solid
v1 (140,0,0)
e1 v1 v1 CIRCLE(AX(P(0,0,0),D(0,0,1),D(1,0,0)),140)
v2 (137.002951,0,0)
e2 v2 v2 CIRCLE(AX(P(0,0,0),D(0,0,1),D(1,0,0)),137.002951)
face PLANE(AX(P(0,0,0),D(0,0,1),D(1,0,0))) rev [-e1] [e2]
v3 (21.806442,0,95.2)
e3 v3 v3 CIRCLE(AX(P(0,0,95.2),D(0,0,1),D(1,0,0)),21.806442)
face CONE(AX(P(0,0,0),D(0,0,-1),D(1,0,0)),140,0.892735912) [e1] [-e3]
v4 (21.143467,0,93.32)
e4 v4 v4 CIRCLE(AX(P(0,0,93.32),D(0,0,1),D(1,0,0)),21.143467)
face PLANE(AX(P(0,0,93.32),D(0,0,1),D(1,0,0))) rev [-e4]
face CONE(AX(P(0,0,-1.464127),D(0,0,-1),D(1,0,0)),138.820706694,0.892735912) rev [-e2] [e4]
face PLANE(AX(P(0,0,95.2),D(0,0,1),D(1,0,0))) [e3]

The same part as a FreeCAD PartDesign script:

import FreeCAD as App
import Part
import Sketcher

V = App.Vector
Q = App.Units.Quantity


def faces_at(feature, points):
    """Names of the faces that lie closest to the given points."""
    faces = feature.Shape.Faces
    near = lambda p: min(range(len(faces)), key=lambda i: faces[i].distToShape(Part.Vertex(*p))[0])
    return sorted({f"Face{near(p) + 1}" for p in points})

doc = App.newDocument("Part")
body = doc.addObject("PartDesign::Body", "Body")

# Sketch on XY plane
sketch1 = body.newObject("Sketcher::SketchObject", "Sketch")
sketch1.AttachmentSupport = (doc.getObject("XY_Plane"), [""])
sketch1.MapMode = "FlatFace"
sketch1.addGeometry(Part.Circle(V(0, 0, 0), V(0, 0, 1), 140), False)
sketch1.addConstraint(Sketcher.Constraint("Coincident", 0, 3, -1, 1))
sketch1.addConstraint(Sketcher.Constraint("Diameter", 0, Q("280 mm")))
pad1 = body.newObject("PartDesign::Pad", "Pad")
pad1.Profile = sketch1
pad1.Length = 95.2
pad1.TaperAngle = -51.15
doc.recompute()

thickness = body.newObject("PartDesign::Thickness", "Thickness")
thickness.Base = (pad1, faces_at(pad1, [(0, 0, 0)]))
thickness.Value = 1.88
thickness.Reversed = True
thickness.Join = "Intersection"

doc.recompute()
